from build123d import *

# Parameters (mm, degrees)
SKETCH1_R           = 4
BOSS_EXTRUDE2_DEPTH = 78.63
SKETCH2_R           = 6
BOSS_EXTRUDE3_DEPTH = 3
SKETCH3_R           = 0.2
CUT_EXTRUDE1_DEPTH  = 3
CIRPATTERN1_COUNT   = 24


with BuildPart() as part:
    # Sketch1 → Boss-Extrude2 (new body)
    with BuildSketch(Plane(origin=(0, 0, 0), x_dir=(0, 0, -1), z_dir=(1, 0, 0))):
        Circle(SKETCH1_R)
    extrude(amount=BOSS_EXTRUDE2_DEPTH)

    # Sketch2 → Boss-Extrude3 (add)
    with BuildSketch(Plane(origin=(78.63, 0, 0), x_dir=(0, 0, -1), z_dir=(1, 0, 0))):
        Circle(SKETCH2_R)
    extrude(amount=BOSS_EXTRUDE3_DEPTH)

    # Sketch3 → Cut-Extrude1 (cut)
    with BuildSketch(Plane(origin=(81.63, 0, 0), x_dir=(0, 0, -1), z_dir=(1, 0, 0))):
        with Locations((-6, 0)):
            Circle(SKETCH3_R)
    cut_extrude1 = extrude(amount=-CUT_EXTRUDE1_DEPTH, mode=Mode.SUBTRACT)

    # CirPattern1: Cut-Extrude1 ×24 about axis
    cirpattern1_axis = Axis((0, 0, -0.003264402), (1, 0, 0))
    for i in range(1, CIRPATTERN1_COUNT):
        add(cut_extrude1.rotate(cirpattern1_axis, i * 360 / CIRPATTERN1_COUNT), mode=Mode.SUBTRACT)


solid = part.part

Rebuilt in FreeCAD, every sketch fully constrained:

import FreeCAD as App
import Part
import Sketcher
from FreeCAD import Vector
Q = App.Units.Quantity

doc = App.newDocument("Part")
body = doc.addObject("PartDesign::Body", "Body")

# Sketch on YZ plane
sketch1 = body.newObject("Sketcher::SketchObject", "Sketch")
sketch1.AttachmentSupport = (doc.getObject("YZ_Plane"), [""])
sketch1.MapMode = "FlatFace"
sketch1.addGeometry(Part.Circle(Vector(0, 0, 0), Vector(0, 0, 1), 4), False)
sketch1.addConstraint([
    Sketcher.Constraint("Coincident", 0, 3, -1, 1),
    Sketcher.Constraint("Diameter", 0, Q("8 mm")),
])
pad1 = body.newObject("PartDesign::Pad", "Pad")
pad1.Profile = sketch1
pad1.Length = 78.63

# Sketch on YZ plane
sketch2 = body.newObject("Sketcher::SketchObject", "Sketch001")
sketch2.AttachmentSupport = (doc.getObject("YZ_Plane"), [""])
sketch2.MapMode = "FlatFace"
sketch2.AttachmentOffset = App.Placement(Vector(0, 0, 78.63), App.Rotation())
sketch2.addGeometry(Part.Circle(Vector(0, 0, 0), Vector(0, 0, 1), 6), False)
sketch2.addConstraint([
    Sketcher.Constraint("Coincident", 0, 3, -1, 1),
    Sketcher.Constraint("Diameter", 0, Q("12 mm")),
])
pad2 = body.newObject("PartDesign::Pad", "Pad001")
pad2.Profile = sketch2
pad2.Length = 3

# Sketch on YZ plane
sketch3 = body.newObject("Sketcher::SketchObject", "Sketch002")
sketch3.AttachmentSupport = (doc.getObject("YZ_Plane"), [""])
sketch3.MapMode = "FlatFace"
sketch3.AttachmentOffset = App.Placement(Vector(0, 0, 81.63), App.Rotation())
sketch3.addGeometry(Part.Circle(Vector(0, 6, 0), Vector(0, 0, 1), 0.2), False)
sketch3.addConstraint([
    Sketcher.Constraint("PointOnObject", 0, 3, -2),
    Sketcher.Constraint("Diameter", 0, Q("0.4 mm")),
    Sketcher.Constraint("DistanceY", -1, 1, 0, 3, Q("6 mm")),
])
pocket1 = body.newObject("PartDesign::Pocket", "Pocket")
pocket1.Profile = sketch3
pocket1.Length = 3
doc.recompute()

datumline = body.newObject("PartDesign::Line", "DatumLine")
datumline.Placement = App.Placement(Vector(0, 0, -0.003264), App.Rotation(Vector(0, 0, 1), Vector(1, 0, 0)))
polarpattern = body.newObject("PartDesign::PolarPattern", "PolarPattern")
polarpattern.Originals = [pocket1]
polarpattern.Axis = (datumline, [""])
polarpattern.Angle = 360
polarpattern.Occurrences = 24
body.Tip = polarpattern

doc.recompute()
